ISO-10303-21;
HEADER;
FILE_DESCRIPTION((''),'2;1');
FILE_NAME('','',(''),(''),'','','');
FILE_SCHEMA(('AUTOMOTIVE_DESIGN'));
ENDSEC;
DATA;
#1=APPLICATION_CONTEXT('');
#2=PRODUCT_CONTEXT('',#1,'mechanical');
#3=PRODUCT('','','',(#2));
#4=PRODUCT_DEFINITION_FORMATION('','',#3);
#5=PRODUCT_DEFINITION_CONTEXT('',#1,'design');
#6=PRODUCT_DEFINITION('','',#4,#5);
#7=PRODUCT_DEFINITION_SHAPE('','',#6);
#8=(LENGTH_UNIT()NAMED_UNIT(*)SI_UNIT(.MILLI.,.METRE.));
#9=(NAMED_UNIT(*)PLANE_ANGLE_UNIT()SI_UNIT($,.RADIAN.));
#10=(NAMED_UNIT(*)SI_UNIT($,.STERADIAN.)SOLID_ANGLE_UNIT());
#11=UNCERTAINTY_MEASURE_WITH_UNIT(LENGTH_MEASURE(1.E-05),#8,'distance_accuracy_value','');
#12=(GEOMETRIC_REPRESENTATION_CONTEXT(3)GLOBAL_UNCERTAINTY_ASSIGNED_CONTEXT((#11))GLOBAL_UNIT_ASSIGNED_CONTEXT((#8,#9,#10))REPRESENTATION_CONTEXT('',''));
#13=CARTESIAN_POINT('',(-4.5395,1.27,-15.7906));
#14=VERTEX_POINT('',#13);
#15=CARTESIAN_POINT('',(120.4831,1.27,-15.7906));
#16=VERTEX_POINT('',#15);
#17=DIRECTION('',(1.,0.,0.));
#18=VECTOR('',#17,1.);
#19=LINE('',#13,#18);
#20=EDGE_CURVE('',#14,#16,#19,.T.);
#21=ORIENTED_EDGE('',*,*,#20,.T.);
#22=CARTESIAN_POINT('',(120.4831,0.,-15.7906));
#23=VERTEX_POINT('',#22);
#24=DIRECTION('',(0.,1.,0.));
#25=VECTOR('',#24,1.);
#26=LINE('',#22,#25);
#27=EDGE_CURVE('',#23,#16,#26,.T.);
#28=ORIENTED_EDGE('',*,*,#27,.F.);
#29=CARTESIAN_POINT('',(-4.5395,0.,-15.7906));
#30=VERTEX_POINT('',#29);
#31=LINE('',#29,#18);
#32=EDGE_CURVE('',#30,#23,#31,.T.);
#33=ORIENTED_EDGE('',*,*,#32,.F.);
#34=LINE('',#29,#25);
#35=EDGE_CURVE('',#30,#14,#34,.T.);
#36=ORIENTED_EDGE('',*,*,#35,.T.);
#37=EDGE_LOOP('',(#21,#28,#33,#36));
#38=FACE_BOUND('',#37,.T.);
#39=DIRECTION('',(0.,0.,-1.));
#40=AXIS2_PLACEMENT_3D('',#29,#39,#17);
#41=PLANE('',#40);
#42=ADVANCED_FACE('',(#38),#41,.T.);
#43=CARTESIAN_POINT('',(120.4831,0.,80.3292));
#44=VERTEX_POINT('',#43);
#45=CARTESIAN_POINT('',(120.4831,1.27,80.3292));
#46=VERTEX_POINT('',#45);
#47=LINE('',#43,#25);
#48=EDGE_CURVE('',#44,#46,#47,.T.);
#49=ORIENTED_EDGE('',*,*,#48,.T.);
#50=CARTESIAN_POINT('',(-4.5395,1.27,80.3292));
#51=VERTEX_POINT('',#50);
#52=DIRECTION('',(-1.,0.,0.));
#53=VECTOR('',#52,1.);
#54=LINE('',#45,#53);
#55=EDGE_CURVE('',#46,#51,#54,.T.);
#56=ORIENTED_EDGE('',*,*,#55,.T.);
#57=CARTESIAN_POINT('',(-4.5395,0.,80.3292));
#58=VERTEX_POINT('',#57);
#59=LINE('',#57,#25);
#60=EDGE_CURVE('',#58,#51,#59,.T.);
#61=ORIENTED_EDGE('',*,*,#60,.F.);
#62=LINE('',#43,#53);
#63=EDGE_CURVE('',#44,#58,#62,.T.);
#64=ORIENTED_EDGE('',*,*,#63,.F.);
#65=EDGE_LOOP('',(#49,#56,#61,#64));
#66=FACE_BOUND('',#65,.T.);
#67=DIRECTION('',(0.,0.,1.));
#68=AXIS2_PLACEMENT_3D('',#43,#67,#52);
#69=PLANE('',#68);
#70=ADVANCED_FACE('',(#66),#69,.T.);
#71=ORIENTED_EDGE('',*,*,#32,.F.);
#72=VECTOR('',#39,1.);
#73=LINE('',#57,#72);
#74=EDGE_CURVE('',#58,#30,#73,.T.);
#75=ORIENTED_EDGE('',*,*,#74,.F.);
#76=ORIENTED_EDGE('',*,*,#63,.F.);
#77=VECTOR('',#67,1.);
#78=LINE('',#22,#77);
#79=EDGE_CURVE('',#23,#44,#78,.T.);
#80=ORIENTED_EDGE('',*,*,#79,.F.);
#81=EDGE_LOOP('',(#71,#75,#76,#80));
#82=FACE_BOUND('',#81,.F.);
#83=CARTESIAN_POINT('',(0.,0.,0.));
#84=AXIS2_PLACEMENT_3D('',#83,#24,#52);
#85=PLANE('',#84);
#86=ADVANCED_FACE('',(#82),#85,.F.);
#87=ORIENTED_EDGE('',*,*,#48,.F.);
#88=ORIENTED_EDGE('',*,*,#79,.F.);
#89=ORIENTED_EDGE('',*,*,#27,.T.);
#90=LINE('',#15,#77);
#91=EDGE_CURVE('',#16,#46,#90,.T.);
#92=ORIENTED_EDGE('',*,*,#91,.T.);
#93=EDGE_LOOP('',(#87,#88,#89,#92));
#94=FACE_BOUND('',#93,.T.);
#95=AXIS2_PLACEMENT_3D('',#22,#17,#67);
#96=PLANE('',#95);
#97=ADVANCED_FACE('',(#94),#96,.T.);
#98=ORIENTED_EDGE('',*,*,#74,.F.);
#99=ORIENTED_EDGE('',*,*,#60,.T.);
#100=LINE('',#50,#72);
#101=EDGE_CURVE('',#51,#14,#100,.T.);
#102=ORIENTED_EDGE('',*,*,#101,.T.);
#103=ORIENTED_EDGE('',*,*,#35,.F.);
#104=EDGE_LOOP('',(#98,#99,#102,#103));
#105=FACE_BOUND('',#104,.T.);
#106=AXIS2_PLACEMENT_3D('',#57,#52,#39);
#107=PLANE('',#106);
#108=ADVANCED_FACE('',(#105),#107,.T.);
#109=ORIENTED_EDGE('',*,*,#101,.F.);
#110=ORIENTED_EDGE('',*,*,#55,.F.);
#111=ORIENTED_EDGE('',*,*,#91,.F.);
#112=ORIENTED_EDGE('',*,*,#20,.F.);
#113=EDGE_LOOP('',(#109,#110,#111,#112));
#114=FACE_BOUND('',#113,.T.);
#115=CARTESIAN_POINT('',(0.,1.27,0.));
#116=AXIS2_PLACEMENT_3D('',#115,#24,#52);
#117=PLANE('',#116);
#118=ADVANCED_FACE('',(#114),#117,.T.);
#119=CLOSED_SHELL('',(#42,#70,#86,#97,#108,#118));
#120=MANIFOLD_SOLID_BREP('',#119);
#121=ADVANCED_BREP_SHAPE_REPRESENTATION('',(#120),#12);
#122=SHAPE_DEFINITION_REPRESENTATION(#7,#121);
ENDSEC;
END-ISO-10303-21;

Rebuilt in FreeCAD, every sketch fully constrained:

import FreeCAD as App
import Part
import Sketcher
Q = App.Units.Quantity

doc = App.newDocument("Part")
params = doc.addObject("Spreadsheet::Sheet", "Params")
for row, (alias, value) in enumerate([
    ("pad1_length", "0.05 in"),
], start=1):
    params.set(f"A{row}", alias)
    params.set(f"B{row}", "=" + value)
    params.setAlias(f"B{row}", alias)

body = doc.addObject("PartDesign::Body", "Body")

# Sketch on XZ plane
sketch1 = doc.addObject("Sketcher::SketchObject", "Sketch")
body.addObject(sketch1)
sketch1.AttachmentSupport = (doc.XZ_Plane, [""])
sketch1.MapMode = "FlatFace"
sketch1.addGeometry(Part.LineSegment(App.Vector(-5, 80, 0), App.Vector(120, 80, 0)), False)
sketch1.addGeometry(Part.LineSegment(App.Vector(120, 80, 0), App.Vector(120, -16, 0)), False)
sketch1.addGeometry(Part.LineSegment(App.Vector(120, -16, 0), App.Vector(-5, -16, 0)), False)
sketch1.addGeometry(Part.LineSegment(App.Vector(-5, -16, 0), App.Vector(-5, 80, 0)), False)
sketch1.addConstraint(Sketcher.Constraint("Coincident", 0, 2, 1, 1))
sketch1.addConstraint(Sketcher.Constraint("Coincident", 1, 2, 2, 1))
sketch1.addConstraint(Sketcher.Constraint("Coincident", 2, 2, 3, 1))
sketch1.addConstraint(Sketcher.Constraint("Coincident", 3, 2, 0, 1))
sketch1.addConstraint(Sketcher.Constraint("Horizontal", 0))
sketch1.addConstraint(Sketcher.Constraint("Vertical", 1))
sketch1.addConstraint(Sketcher.Constraint("Horizontal", 2))
sketch1.addConstraint(Sketcher.Constraint("Vertical", 3))
sketch1.addConstraint(Sketcher.Constraint("DistanceX", 0, 1, 0, 2, Q("125.0226 mm")))
sketch1.addConstraint(Sketcher.Constraint("DistanceY", 1, 2, 1, 1, Q("96.1198 mm")))
sketch1.addConstraint(Sketcher.Constraint("DistanceX", -1, 1, 0, 2, Q("120.483 mm")))
sketch1.addConstraint(Sketcher.Constraint("DistanceY", -1, 1, 0, 2, Q("80.3292 mm")))
pad1 = doc.addObject("PartDesign::Pad", "Pad")
body.addObject(pad1)
pad1.Profile = sketch1
pad1.setExpression("Length", "Params.pad1_length")
pad1.Reversed = True

doc.recompute()
